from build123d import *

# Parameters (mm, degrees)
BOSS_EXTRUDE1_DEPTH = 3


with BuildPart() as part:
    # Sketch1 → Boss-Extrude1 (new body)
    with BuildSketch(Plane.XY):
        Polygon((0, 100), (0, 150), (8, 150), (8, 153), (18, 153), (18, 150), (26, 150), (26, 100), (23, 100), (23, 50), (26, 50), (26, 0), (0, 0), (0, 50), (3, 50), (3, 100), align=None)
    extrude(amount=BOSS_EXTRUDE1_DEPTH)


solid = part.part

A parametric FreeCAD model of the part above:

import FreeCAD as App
import Part
import Sketcher
from FreeCAD import Vector

doc = App.newDocument("Part")
body = doc.addObject("PartDesign::Body", "Body")

# Sketch on XY plane
sketch1 = body.newObject("Sketcher::SketchObject", "Sketch")
sketch1.AttachmentSupport = (doc.getObject("XY_Plane"), [""])
sketch1.MapMode = "FlatFace"
sketch1.addGeometry([
    Part.LineSegment(Vector(0, 150, 0), Vector(0, 100, 0)),  # 0
    Part.LineSegment(Vector(0, 100, 0), Vector(3, 100, 0)),  # 1
    Part.LineSegment(Vector(3, 100, 0), Vector(3, 50, 0)),  # 2
    Part.LineSegment(Vector(3, 50, 0), Vector(0, 50, 0)),  # 3
    Part.LineSegment(Vector(0, 50, 0), Vector(0, 0, 0)),  # 4
    Part.LineSegment(Vector(0, 0, 0), Vector(26, 0, 0)),  # 5
    Part.LineSegment(Vector(26, 0, 0), Vector(26, 50, 0)),  # 6
    Part.LineSegment(Vector(26, 50, 0), Vector(23, 50, 0)),  # 7
    Part.LineSegment(Vector(23, 50, 0), Vector(23, 100, 0)),  # 8
    Part.LineSegment(Vector(23, 100, 0), Vector(26, 100, 0)),  # 9
    Part.LineSegment(Vector(26, 100, 0), Vector(26, 150, 0)),  # 10
    Part.LineSegment(Vector(26, 150, 0), Vector(18, 150, 0)),  # 11
    Part.LineSegment(Vector(18, 150, 0), Vector(18, 153, 0)),  # 12
    Part.LineSegment(Vector(18, 153, 0), Vector(8, 153, 0)),  # 13
    Part.LineSegment(Vector(8, 153, 0), Vector(8, 150, 0)),  # 14
    Part.LineSegment(Vector(8, 150, 0), Vector(0, 150, 0)),  # 15
], False)
sketch1.addConstraint([
    Sketcher.Constraint("Coincident", 0, 2, 1, 1),
    Sketcher.Constraint("Coincident", 1, 2, 2, 1),
    Sketcher.Constraint("Coincident", 2, 2, 3, 1),
    Sketcher.Constraint("Coincident", 3, 2, 4, 1),
    Sketcher.Constraint("Coincident", 4, 2, 5, 1),
    Sketcher.Constraint("Coincident", 5, 2, 6, 1),
    Sketcher.Constraint("Coincident", 6, 2, 7, 1),
    Sketcher.Constraint("Coincident", 7, 2, 8, 1),
    Sketcher.Constraint("Coincident", 8, 2, 9, 1),
    Sketcher.Constraint("Coincident", 9, 2, 10, 1),
    Sketcher.Constraint("Coincident", 10, 2, 11, 1),
    Sketcher.Constraint("Coincident", 11, 2, 12, 1),
    Sketcher.Constraint("Coincident", 12, 2, 13, 1),
    Sketcher.Constraint("Coincident", 13, 2, 14, 1),
    Sketcher.Constraint("Coincident", 14, 2, 15, 1),
    Sketcher.Constraint("Coincident", 15, 2, 0, 1),
    Sketcher.Constraint("Vertical", 0),
    Sketcher.Constraint("Horizontal", 1),
    Sketcher.Constraint("Vertical", 2),
    Sketcher.Constraint("Horizontal", 3),
    Sketcher.Constraint("Vertical", 4),
    Sketcher.Constraint("Horizontal", 5),
    Sketcher.Constraint("Vertical", 6),
    Sketcher.Constraint("Horizontal", 7),
    Sketcher.Constraint("Vertical", 8),
    Sketcher.Constraint("Horizontal", 9),
    Sketcher.Constraint("Vertical", 10),
    Sketcher.Constraint("Horizontal", 11),
    Sketcher.Constraint("Vertical", 12),
    Sketcher.Constraint("Horizontal", 13),
    Sketcher.Constraint("Vertical", 14),
    Sketcher.Constraint("Horizontal", 15),
    Sketcher.Constraint("Coincident", 4, 2, -1, 1),
    Sketcher.Constraint("PointOnObject", 0, 2, -2),
    Sketcher.Constraint("Horizontal", 3, 2, 6, 2),
    Sketcher.Constraint("Horizontal", 1, 2, 8, 2),
    Sketcher.Constraint("Horizontal", 11, 2, 14, 2),
    Sketcher.Constraint("Vertical", 6, 2, 9, 2),
    Sketcher.Constraint("Equal", 3, 7),
    Sketcher.Constraint("Equal", 11, 15),
    Sketcher.Constraint("Equal", 0, 2),
    Sketcher.Constraint("Equal", 2, 4),
    Sketcher.Constraint("Equal", 9, 12),
    Sketcher.Constraint("DistanceX", 1, 1, 1, 2, 3.0),
    Sketcher.Constraint("DistanceX", 5, 1, 5, 2, 26.0),
    Sketcher.Constraint("DistanceX", 11, 2, 11, 1, 8.0),
    Sketcher.Constraint("DistanceY", 0, 2, 0, 1, 50.0),
])
pad1 = body.newObject("PartDesign::Pad", "Pad")
pad1.Profile = sketch1
pad1.Length = 3

doc.recompute()
